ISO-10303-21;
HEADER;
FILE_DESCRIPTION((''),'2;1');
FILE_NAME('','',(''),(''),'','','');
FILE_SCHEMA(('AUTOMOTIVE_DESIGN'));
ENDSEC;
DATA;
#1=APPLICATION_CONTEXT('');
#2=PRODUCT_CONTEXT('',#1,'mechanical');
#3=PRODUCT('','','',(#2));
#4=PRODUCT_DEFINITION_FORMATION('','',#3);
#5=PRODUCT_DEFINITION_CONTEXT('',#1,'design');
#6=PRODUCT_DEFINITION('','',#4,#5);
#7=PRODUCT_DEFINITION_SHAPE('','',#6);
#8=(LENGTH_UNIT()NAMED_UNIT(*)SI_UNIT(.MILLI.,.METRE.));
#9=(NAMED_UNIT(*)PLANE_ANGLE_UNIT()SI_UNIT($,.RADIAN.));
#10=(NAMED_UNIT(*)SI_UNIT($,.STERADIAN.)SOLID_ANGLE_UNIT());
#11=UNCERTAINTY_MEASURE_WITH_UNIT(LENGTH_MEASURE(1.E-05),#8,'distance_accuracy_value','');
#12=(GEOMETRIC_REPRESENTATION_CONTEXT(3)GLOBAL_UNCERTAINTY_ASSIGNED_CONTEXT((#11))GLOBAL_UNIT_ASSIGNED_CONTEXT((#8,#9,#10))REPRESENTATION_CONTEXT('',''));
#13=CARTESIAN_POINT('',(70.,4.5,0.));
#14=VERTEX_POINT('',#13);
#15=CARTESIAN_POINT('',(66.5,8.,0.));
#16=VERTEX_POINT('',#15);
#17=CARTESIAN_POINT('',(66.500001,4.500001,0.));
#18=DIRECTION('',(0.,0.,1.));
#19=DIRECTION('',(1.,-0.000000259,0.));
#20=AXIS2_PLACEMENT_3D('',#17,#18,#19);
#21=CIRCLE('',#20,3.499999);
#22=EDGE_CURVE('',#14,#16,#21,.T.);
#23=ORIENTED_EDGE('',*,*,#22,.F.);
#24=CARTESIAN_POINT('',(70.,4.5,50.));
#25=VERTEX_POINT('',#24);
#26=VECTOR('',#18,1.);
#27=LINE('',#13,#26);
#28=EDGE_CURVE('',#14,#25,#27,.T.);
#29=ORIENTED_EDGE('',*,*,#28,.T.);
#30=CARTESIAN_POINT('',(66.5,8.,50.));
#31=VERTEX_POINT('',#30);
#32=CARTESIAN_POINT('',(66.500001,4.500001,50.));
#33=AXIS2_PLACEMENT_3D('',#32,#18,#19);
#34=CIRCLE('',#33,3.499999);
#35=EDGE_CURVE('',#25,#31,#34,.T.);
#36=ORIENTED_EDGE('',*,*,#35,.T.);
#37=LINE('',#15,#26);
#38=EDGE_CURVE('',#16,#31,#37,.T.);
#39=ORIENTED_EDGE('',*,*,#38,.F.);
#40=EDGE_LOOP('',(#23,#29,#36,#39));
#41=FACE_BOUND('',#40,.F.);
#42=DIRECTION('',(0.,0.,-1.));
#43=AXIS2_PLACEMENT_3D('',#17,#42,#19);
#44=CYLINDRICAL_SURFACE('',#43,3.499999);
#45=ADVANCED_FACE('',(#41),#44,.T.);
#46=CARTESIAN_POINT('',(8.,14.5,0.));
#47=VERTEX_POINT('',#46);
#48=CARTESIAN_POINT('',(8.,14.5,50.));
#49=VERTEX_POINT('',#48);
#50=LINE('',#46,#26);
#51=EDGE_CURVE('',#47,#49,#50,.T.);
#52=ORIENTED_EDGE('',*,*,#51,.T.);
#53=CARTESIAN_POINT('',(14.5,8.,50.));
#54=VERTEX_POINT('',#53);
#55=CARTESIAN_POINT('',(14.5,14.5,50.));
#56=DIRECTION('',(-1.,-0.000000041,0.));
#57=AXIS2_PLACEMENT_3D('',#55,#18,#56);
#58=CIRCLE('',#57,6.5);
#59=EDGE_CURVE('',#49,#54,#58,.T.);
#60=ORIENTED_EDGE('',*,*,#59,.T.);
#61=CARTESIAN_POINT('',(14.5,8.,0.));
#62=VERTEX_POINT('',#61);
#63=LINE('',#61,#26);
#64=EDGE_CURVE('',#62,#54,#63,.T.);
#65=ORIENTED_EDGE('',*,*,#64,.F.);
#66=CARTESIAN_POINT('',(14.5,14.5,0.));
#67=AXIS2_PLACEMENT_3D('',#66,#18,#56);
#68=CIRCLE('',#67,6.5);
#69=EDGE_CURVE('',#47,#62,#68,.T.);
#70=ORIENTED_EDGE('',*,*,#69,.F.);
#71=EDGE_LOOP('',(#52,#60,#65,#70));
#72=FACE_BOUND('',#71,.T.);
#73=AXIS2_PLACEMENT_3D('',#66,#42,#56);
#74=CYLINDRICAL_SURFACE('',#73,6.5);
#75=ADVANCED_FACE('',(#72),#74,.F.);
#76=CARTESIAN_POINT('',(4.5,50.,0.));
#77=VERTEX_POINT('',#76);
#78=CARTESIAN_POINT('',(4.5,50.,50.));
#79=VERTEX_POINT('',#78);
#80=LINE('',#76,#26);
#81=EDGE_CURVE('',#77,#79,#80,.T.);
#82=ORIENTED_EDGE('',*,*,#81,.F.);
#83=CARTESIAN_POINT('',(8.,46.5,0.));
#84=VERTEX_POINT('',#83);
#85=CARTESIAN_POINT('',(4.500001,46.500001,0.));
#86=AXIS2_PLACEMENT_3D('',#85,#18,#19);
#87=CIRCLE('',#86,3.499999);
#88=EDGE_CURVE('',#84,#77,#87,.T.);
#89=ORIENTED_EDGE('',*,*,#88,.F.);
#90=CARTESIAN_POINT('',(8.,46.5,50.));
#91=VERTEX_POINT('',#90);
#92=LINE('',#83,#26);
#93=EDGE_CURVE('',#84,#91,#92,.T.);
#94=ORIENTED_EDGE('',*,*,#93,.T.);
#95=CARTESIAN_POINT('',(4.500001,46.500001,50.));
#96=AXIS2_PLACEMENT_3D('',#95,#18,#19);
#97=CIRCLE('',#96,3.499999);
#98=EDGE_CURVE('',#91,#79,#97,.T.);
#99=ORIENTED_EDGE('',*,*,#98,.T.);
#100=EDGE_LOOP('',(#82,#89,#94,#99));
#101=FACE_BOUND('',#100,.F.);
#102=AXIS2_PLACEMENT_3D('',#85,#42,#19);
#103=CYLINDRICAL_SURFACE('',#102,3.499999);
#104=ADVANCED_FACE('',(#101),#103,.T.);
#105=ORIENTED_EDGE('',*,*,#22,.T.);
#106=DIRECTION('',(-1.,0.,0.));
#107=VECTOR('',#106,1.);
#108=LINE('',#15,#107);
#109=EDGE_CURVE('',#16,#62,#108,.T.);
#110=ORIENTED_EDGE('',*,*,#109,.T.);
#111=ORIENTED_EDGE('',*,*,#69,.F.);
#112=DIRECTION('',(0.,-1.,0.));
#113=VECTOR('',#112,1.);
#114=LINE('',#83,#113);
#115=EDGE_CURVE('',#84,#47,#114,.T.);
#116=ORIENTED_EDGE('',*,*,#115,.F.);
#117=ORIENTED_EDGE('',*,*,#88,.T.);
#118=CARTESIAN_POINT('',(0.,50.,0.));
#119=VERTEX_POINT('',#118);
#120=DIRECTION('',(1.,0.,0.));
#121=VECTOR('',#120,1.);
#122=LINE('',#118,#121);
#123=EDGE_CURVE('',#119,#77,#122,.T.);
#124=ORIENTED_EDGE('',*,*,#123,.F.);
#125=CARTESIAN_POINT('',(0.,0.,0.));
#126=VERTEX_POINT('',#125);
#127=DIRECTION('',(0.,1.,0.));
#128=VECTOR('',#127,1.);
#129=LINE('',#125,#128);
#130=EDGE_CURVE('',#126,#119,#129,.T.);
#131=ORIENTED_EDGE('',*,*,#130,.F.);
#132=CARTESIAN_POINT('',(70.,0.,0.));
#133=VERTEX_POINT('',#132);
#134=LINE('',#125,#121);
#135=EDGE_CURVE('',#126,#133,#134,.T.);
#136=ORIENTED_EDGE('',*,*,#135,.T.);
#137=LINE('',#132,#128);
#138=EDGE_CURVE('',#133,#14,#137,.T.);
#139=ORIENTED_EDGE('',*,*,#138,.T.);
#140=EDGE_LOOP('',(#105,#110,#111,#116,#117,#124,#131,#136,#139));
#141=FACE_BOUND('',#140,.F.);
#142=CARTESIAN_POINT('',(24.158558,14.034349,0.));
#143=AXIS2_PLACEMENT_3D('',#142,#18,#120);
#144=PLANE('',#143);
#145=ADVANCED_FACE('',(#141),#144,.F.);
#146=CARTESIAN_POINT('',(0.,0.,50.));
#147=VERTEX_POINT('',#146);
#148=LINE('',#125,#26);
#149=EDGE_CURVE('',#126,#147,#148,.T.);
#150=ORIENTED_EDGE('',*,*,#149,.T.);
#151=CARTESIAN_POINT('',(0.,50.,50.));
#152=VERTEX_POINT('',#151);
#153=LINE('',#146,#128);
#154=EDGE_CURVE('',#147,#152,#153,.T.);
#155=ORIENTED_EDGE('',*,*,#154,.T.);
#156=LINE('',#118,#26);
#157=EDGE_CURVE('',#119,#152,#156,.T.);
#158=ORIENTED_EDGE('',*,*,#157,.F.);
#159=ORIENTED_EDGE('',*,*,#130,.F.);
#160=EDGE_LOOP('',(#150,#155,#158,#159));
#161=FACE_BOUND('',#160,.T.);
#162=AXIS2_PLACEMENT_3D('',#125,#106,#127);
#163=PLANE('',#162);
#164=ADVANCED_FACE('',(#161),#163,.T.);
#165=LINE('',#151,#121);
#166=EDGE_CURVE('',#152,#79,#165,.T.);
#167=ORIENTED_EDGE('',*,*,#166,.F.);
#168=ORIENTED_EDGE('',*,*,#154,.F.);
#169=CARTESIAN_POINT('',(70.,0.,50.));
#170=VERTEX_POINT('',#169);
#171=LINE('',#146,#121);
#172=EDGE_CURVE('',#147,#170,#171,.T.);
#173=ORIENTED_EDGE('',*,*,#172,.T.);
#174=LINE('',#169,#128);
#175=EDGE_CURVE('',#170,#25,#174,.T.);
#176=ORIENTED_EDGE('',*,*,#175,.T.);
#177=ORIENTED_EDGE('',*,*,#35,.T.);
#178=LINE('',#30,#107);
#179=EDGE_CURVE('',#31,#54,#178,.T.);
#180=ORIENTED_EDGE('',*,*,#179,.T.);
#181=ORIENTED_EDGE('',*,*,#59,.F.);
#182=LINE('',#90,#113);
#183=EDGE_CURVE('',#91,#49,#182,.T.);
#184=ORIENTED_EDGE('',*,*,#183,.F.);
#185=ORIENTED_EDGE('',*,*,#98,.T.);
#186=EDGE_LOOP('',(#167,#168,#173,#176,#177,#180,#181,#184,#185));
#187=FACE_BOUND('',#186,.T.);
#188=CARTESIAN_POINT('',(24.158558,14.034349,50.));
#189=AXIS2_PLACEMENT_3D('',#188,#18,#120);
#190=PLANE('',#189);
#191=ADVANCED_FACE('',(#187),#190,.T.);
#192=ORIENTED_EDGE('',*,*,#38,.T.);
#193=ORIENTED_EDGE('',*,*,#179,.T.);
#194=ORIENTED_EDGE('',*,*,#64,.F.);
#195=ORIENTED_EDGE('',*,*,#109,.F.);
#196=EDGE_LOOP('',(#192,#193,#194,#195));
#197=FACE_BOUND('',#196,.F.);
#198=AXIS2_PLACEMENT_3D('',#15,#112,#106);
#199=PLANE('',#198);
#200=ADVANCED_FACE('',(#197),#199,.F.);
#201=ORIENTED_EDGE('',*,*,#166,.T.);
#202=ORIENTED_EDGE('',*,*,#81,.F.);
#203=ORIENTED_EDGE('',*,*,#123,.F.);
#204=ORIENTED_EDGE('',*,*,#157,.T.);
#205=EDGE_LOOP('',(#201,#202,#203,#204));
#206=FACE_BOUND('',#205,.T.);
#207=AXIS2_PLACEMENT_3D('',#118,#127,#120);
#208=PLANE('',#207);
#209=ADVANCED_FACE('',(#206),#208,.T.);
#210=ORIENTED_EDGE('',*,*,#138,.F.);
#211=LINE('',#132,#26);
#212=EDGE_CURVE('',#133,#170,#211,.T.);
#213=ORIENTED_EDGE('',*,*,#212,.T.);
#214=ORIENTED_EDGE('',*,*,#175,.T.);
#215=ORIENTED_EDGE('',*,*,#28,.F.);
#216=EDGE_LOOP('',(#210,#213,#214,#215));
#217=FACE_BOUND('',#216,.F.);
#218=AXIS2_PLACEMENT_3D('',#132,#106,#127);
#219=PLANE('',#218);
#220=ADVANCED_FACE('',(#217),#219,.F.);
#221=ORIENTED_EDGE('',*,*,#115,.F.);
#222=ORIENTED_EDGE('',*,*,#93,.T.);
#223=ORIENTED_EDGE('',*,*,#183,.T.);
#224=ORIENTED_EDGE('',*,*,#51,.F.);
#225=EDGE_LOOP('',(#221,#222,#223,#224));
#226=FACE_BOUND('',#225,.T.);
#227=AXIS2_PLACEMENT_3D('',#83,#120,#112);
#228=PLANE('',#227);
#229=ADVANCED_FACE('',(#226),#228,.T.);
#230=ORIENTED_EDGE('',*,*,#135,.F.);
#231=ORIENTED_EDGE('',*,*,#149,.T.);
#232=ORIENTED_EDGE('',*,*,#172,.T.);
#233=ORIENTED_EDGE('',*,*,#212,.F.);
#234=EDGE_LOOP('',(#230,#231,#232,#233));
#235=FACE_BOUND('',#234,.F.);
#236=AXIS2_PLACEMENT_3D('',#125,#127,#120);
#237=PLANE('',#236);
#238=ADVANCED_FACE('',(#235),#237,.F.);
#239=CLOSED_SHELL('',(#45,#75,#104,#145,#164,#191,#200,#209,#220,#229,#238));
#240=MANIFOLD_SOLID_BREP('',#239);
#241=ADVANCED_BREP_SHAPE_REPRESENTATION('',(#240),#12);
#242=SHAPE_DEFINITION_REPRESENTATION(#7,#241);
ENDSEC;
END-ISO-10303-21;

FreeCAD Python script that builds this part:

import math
import FreeCAD as App
import Part
import Sketcher
from FreeCAD import Vector

doc = App.newDocument("Part")
params = doc.addObject("Spreadsheet::Sheet", "Params")
for row, (alias, value) in enumerate([
    ("sketch1_radius", "3.499999 mm"),
    ("sketch1_radius2", "6.5 mm"),
    ("sketch1_width", "70 mm"),
    ("sketch1_width2", "52 mm"),
    ("sketch1_height", "32 mm"),
    ("pad1_length", "50 mm"),
], start=1):
    params.set(f"A{row}", alias)
    params.set(f"B{row}", "=" + value)
    params.setAlias(f"B{row}", alias)

body = doc.addObject("PartDesign::Body", "Body")

# Sketch on XY plane
sketch1 = doc.addObject("Sketcher::SketchObject", "Sketch")
body.addObject(sketch1)
sketch1.AttachmentSupport = (doc.XY_Plane, [""])
sketch1.MapMode = "FlatFace"
sketch1.addGeometry([
    Part.LineSegment(Vector(0, 0, 0), Vector(70, 0, 0)),  # 0
    Part.LineSegment(Vector(70, 0, 0), Vector(70, 4.5, 0)),  # 1
    Part.ArcOfCircle(Part.Circle(Vector(66.5, 4.5, 0), Vector(0, 0, 1), 3.5), math.radians(0), math.radians(90)),  # 2
    Part.LineSegment(Vector(66.5, 8, 0), Vector(14.5, 8, 0)),  # 3
    Part.ArcOfCircle(Part.Circle(Vector(14.5, 14.5, 0), Vector(0, 0, 1), 6.5), math.radians(-180), math.radians(-90)),  # 4
    Part.LineSegment(Vector(8, 14.5, 0), Vector(8, 46.5, 0)),  # 5
    Part.ArcOfCircle(Part.Circle(Vector(4.5, 46.5, 0), Vector(0, 0, 1), 3.5), math.radians(0), math.radians(90)),  # 6
    Part.LineSegment(Vector(4.5, 50, 0), Vector(0, 50, 0)),  # 7
    Part.LineSegment(Vector(0, 50, 0), Vector(0, 0, 0)),  # 8
], False)
sketch1.addConstraint([
    Sketcher.Constraint("Coincident", 0, 2, 1, 1),
    Sketcher.Constraint("Tangent", 1, 2, 2, 1),
    Sketcher.Constraint("Tangent", 2, 2, 3, 1),
    Sketcher.Constraint("Tangent", 3, 2, 4, 2),
    Sketcher.Constraint("Tangent", 4, 1, 5, 1),
    Sketcher.Constraint("Tangent", 5, 2, 6, 1),
    Sketcher.Constraint("Tangent", 6, 2, 7, 1),
    Sketcher.Constraint("Coincident", 7, 2, 8, 1),
    Sketcher.Constraint("Coincident", 8, 2, 0, 1),
    Sketcher.Constraint("Horizontal", 0),
    Sketcher.Constraint("Vertical", 1),
    Sketcher.Constraint("Horizontal", 3),
    Sketcher.Constraint("Vertical", 5),
    Sketcher.Constraint("Horizontal", 7),
    Sketcher.Constraint("Vertical", 8),
    Sketcher.Constraint("Coincident", 8, 2, -1, 1),
    Sketcher.Constraint("Equal", 2, 6),
    Sketcher.Constraint("Equal", 7, 1),
    Sketcher.Constraint("Radius", 2, 3.499999),
    Sketcher.Constraint("Radius", 4, 6.5),
    Sketcher.Constraint("DistanceX", 0, 1, 0, 2, 70.0),
    Sketcher.Constraint("DistanceX", 3, 2, 3, 1, 52.0),
    Sketcher.Constraint("DistanceY", 5, 1, 5, 2, 32.0),
])
sketch1.setExpression("Constraints[18]", "Params.sketch1_radius")
sketch1.setExpression("Constraints[19]", "Params.sketch1_radius2")
sketch1.setExpression("Constraints[20]", "Params.sketch1_width")
sketch1.setExpression("Constraints[21]", "Params.sketch1_width2")
sketch1.setExpression("Constraints[22]", "Params.sketch1_height")
pad1 = doc.addObject("PartDesign::Pad", "Pad")
body.addObject(pad1)
pad1.Profile = sketch1
pad1.setExpression("Length", "Params.pad1_length")

doc.recompute()
